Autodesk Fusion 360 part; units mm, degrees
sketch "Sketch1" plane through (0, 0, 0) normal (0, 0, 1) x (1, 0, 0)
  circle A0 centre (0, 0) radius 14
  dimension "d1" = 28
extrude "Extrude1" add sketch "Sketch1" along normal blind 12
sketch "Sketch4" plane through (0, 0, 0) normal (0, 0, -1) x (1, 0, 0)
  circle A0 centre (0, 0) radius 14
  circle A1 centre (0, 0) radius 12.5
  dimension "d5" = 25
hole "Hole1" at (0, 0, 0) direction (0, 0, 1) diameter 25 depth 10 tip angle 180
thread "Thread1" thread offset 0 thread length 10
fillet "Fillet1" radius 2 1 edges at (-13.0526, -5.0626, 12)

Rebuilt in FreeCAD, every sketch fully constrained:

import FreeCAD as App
import Part
import Sketcher
from FreeCAD import Vector


def edges_at(feature, points):
    """Names of the edges that pass closest to the given points."""
    edges = feature.Shape.Edges
    near = lambda p: min(range(len(edges)), key=lambda i: edges[i].distToShape(Part.Vertex(*p))[0])
    return sorted({f"Edge{near(p) + 1}" for p in points})

doc = App.newDocument("Part")
body = doc.addObject("PartDesign::Body", "Body")

sketch1 = body.newObject("Sketcher::SketchObject", "Sketch")
sketch1.AttachmentSupport = (doc.getObject("XY_Plane"), [""])
sketch1.MapMode = "FlatFace"
sketch1.addGeometry(Part.Circle(Vector(0, 0, 0), Vector(0, 0, 1), 14), False)
sketch1.addConstraint([
    Sketcher.Constraint("Coincident", 0, 3, -1, 1),
    Sketcher.Constraint("Diameter", 0, 28.0),
])
pad1 = body.newObject("PartDesign::Pad", "Pad")
pad1.Profile = sketch1
pad1.Length = 12

sketch2 = body.newObject("Sketcher::SketchObject", "Sketch001")
sketch2.AttachmentSupport = (doc.getObject("XY_Plane"), [""])
sketch2.MapMode = "FlatFace"
sketch2.addGeometry(Part.Circle(Vector(0, 0, 0), Vector(0, 0, 1), 12), False)
sketch2.addConstraint([
    Sketcher.Constraint("Coincident", 0, 3, -1, 1),
    Sketcher.Constraint("Diameter", 0, 25.0),
])
doc.recompute()
hole = body.newObject("PartDesign::Hole", "Hole")
hole.Profile = sketch2
hole.ThreadType = "None"
hole.Diameter = 25
hole.DepthType = "Dimension"
hole.Depth = 10
hole.DrillPoint = "Flat"
hole.Reversed = True
doc.recompute()

fillet = body.newObject("PartDesign::Fillet", "Fillet")
fillet.Base = (hole, edges_at(hole, [(-13.053, -5.063, 12)]))
fillet.Radius = 2

doc.recompute()
